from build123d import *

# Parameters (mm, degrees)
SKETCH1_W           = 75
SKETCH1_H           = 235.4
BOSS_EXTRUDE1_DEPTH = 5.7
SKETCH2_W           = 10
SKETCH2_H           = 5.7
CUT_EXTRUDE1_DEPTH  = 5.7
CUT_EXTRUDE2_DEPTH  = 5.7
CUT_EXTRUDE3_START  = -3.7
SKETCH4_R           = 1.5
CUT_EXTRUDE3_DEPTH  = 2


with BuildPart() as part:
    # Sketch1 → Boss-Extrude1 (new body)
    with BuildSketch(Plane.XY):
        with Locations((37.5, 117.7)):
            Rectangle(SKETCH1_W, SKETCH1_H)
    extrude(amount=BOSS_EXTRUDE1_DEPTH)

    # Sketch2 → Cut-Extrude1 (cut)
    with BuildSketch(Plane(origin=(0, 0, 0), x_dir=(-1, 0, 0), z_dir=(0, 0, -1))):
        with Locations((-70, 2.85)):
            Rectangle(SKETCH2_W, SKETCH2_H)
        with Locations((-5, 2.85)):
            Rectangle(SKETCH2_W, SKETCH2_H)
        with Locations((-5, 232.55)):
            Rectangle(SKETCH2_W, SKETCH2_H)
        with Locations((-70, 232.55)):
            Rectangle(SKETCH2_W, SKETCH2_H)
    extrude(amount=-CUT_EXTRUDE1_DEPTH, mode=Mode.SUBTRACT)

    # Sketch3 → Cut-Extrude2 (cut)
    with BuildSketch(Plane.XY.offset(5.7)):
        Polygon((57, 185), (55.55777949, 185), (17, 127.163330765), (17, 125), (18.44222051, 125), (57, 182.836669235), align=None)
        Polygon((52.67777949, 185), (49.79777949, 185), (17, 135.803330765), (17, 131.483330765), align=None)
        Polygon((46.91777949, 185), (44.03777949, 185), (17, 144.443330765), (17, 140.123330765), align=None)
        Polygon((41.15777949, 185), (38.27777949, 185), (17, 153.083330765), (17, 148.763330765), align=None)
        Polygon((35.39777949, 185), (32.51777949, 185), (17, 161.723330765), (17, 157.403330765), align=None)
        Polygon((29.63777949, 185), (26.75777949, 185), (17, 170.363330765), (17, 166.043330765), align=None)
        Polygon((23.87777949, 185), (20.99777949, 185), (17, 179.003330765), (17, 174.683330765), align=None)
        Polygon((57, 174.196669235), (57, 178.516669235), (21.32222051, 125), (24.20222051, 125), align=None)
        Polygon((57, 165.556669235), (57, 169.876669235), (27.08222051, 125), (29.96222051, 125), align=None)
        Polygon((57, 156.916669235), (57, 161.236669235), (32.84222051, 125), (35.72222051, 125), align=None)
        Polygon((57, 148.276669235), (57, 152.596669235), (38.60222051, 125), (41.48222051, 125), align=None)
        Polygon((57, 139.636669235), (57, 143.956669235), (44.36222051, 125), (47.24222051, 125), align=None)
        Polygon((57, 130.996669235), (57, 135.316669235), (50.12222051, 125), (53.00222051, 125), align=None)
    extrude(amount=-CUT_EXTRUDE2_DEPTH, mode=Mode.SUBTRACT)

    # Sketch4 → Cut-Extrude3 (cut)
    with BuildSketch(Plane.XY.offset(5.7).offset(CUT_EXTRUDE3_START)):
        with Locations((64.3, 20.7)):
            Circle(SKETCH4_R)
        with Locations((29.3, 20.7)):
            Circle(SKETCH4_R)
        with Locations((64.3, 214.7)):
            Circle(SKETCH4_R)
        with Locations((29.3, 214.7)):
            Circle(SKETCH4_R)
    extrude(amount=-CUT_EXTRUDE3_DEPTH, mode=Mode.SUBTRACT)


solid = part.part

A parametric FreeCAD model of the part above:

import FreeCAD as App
import Part
import Sketcher

V = App.Vector
Q = App.Units.Quantity

doc = App.newDocument("Part")
params = doc.addObject("Spreadsheet::Sheet", "Params")
for row, (alias, value) in enumerate([
    ("sketch1_width", "75 mm"),
    ("sketch1_height", "235.4 mm"),
    ("pad1_length", "5.7 mm"),
    ("sketch2_width", "10 mm"),
    ("sketch2_height", "5.7 mm"),
    ("pocket1_length", "5.7 mm"),
    ("sketch3_width", "2.88 mm"),
    ("sketch3_height", "4.32 mm"),
    ("pocket2_length", "5.7 mm"),
    ("sketch4_diameter", "3 mm"),
    ("pocket3_length", "2 mm"),
], start=1):
    params.set(f"A{row}", alias)
    params.set(f"B{row}", "=" + value)
    params.setAlias(f"B{row}", alias)

body = doc.addObject("PartDesign::Body", "Body")

sketch1 = body.newObject("Sketcher::SketchObject", "Sketch")
sketch1.AttachmentSupport = (doc.getObject("XY_Plane"), [""])
sketch1.MapMode = "FlatFace"
sketch1.addGeometry([
    Part.LineSegment(V(0, 235, 0), V(0, 0, 0)),
    Part.LineSegment(V(0, 0, 0), V(75, 0, 0)),
    Part.LineSegment(V(75, 0, 0), V(75, 235, 0)),
    Part.LineSegment(V(75, 235, 0), V(0, 235, 0)),
], False)
sketch1.addConstraint([
    Sketcher.Constraint("Coincident", 0, 2, 1, 1),
    Sketcher.Constraint("Coincident", 1, 2, 2, 1),
    Sketcher.Constraint("Coincident", 2, 2, 3, 1),
    Sketcher.Constraint("Coincident", 3, 2, 0, 1),
    Sketcher.Constraint("Vertical", 0),
    Sketcher.Constraint("Horizontal", 1),
    Sketcher.Constraint("Vertical", 2),
    Sketcher.Constraint("Horizontal", 3),
    Sketcher.Constraint("Coincident", 0, 2, -1, 1),
    Sketcher.Constraint("DistanceX", 1, 1, 1, 2, Q("75 mm")),
    Sketcher.Constraint("DistanceY", 0, 2, 0, 1, Q("235.4 mm")),
])
sketch1.setExpression("Constraints[9]", "Params.sketch1_width")
sketch1.setExpression("Constraints[10]", "Params.sketch1_height")
pad1 = body.newObject("PartDesign::Pad", "Pad")
pad1.Profile = sketch1
pad1.setExpression("Length", "Params.pad1_length")

sketch2 = body.newObject("Sketcher::SketchObject", "Sketch001")
sketch2.AttachmentSupport = (doc.getObject("XY_Plane"), [""])
sketch2.MapMode = "FlatFace"
sketch2.addGeometry([
    Part.LineSegment(V(75, 6, 0), V(75, 0, 0)),
    Part.LineSegment(V(75, 0, 0), V(65, 0, 0)),
    Part.LineSegment(V(65, 0, 0), V(65, 6, 0)),
    Part.LineSegment(V(65, 6, 0), V(75, 6, 0)),
    Part.LineSegment(V(10, 6, 0), V(10, 0, 0)),
    Part.LineSegment(V(10, 0, 0), V(0, 0, 0)),
    Part.LineSegment(V(0, 0, 0), V(0, 6, 0)),
    Part.LineSegment(V(0, 6, 0), V(10, 6, 0)),
    Part.LineSegment(V(10, 235, 0), V(10, 230, 0)),
    Part.LineSegment(V(10, 230, 0), V(0, 230, 0)),
    Part.LineSegment(V(0, 230, 0), V(0, 235, 0)),
    Part.LineSegment(V(0, 235, 0), V(10, 235, 0)),
    Part.LineSegment(V(75, 235, 0), V(75, 230, 0)),
    Part.LineSegment(V(75, 230, 0), V(65, 230, 0)),
    Part.LineSegment(V(65, 230, 0), V(65, 235, 0)),
    Part.LineSegment(V(65, 235, 0), V(75, 235, 0)),
], False)
sketch2.addConstraint([
    Sketcher.Constraint("Coincident", 0, 2, 1, 1),
    Sketcher.Constraint("Coincident", 1, 2, 2, 1),
    Sketcher.Constraint("Coincident", 2, 2, 3, 1),
    Sketcher.Constraint("Coincident", 3, 2, 0, 1),
    Sketcher.Constraint("Coincident", 4, 2, 5, 1),
    Sketcher.Constraint("Coincident", 5, 2, 6, 1),
    Sketcher.Constraint("Coincident", 6, 2, 7, 1),
    Sketcher.Constraint("Coincident", 7, 2, 4, 1),
    Sketcher.Constraint("Coincident", 8, 2, 9, 1),
    Sketcher.Constraint("Coincident", 9, 2, 10, 1),
    Sketcher.Constraint("Coincident", 10, 2, 11, 1),
    Sketcher.Constraint("Coincident", 11, 2, 8, 1),
    Sketcher.Constraint("Coincident", 12, 2, 13, 1),
    Sketcher.Constraint("Coincident", 13, 2, 14, 1),
    Sketcher.Constraint("Coincident", 14, 2, 15, 1),
    Sketcher.Constraint("Coincident", 15, 2, 12, 1),
    Sketcher.Constraint("Vertical", 0),
    Sketcher.Constraint("Horizontal", 1),
    Sketcher.Constraint("Vertical", 2),
    Sketcher.Constraint("Horizontal", 3),
    Sketcher.Constraint("Vertical", 4),
    Sketcher.Constraint("Horizontal", 5),
    Sketcher.Constraint("Vertical", 6),
    Sketcher.Constraint("Horizontal", 7),
    Sketcher.Constraint("Vertical", 8),
    Sketcher.Constraint("Horizontal", 9),
    Sketcher.Constraint("Vertical", 10),
    Sketcher.Constraint("Horizontal", 11),
    Sketcher.Constraint("Vertical", 12),
    Sketcher.Constraint("Horizontal", 13),
    Sketcher.Constraint("Vertical", 14),
    Sketcher.Constraint("Horizontal", 15),
    Sketcher.Constraint("Coincident", 5, 2, -1, 1),
    Sketcher.Constraint("PointOnObject", 0, 2, -1),
    Sketcher.Constraint("PointOnObject", 9, 2, -2),
    Sketcher.Constraint("Horizontal", 3, 2, 6, 2),
    Sketcher.Constraint("Horizontal", 9, 2, 12, 2),
    Sketcher.Constraint("Horizontal", 11, 2, 14, 2),
    Sketcher.Constraint("Vertical", 7, 2, 8, 2),
    Sketcher.Constraint("Vertical", 3, 2, 12, 2),
    Sketcher.Constraint("Vertical", 2, 2, 13, 2),
    Sketcher.Constraint("Equal", 3, 5),
    Sketcher.Constraint("Equal", 6, 8),
    Sketcher.Constraint("DistanceX", 1, 2, 1, 1, Q("10 mm")),
    Sketcher.Constraint("DistanceY", 0, 2, 0, 1, Q("5.7 mm")),
    Sketcher.Constraint("DistanceX", -1, 1, 0, 2, Q("75 mm")),
    Sketcher.Constraint("DistanceY", 7, 2, 8, 2, Q("224 mm")),
])
sketch2.setExpression("Constraints[43]", "Params.sketch2_width")
sketch2.setExpression("Constraints[44]", "Params.sketch2_height")
pocket1 = body.newObject("PartDesign::Pocket", "Pocket")
pocket1.Profile = sketch2
pocket1.setExpression("Length", "Params.pocket1_length")
pocket1.Reversed = True

sketch3 = body.newObject("Sketcher::SketchObject", "Sketch002")
sketch3.AttachmentSupport = (doc.getObject("XY_Plane"), [""])
sketch3.MapMode = "FlatFace"
sketch3.AttachmentOffset = App.Placement(V(0, 0, 5.7), App.Rotation())
sketch3.addGeometry([
    Part.LineSegment(V(57, 185, 0), V(55.6, 185, 0)),
    Part.LineSegment(V(55.6, 185, 0), V(17, 127.2, 0)),
    Part.LineSegment(V(17, 127.2, 0), V(17, 125, 0)),
    Part.LineSegment(V(17, 125, 0), V(18.4, 125, 0)),
    Part.LineSegment(V(18.4, 125, 0), V(57, 182.8, 0)),
    Part.LineSegment(V(57, 182.8, 0), V(57, 185, 0)),
    Part.LineSegment(V(52.7, 185, 0), V(49.8, 185, 0)),
    Part.LineSegment(V(49.8, 185, 0), V(17, 135.8, 0)),
    Part.LineSegment(V(17, 135.8, 0), V(17, 131.5, 0)),
    Part.LineSegment(V(17, 131.5, 0), V(52.7, 185, 0)),
    Part.LineSegment(V(46.9, 185, 0), V(44, 185, 0)),
    Part.LineSegment(V(44, 185, 0), V(17, 144.4, 0)),
    Part.LineSegment(V(17, 144.4, 0), V(17, 140.1, 0)),
    Part.LineSegment(V(17, 140.1, 0), V(46.9, 185, 0)),
    Part.LineSegment(V(41.2, 185, 0), V(38.3, 185, 0)),
    Part.LineSegment(V(38.3, 185, 0), V(17, 153.1, 0)),
    Part.LineSegment(V(17, 153.1, 0), V(17, 148.8, 0)),
    Part.LineSegment(V(17, 148.8, 0), V(41.2, 185, 0)),
    Part.LineSegment(V(35.4, 185, 0), V(32.5, 185, 0)),
    Part.LineSegment(V(32.5, 185, 0), V(17, 161.7, 0)),
    Part.LineSegment(V(17, 161.7, 0), V(17, 157.4, 0)),
    Part.LineSegment(V(17, 157.4, 0), V(35.4, 185, 0)),
    Part.LineSegment(V(29.6, 185, 0), V(26.8, 185, 0)),
    Part.LineSegment(V(26.8, 185, 0), V(17, 170.4, 0)),
    Part.LineSegment(V(17, 170.4, 0), V(17, 166, 0)),
    Part.LineSegment(V(17, 166, 0), V(29.6, 185, 0)),
    Part.LineSegment(V(23.9, 185, 0), V(21, 185, 0)),
    Part.LineSegment(V(21, 185, 0), V(17, 179, 0)),
    Part.LineSegment(V(17, 179, 0), V(17, 174.7, 0)),
    Part.LineSegment(V(17, 174.7, 0), V(23.9, 185, 0)),
    Part.LineSegment(V(57, 174.2, 0), V(57, 178.5, 0)),
    Part.LineSegment(V(57, 178.5, 0), V(21.3, 125, 0)),
    Part.LineSegment(V(21.3, 125, 0), V(24.2, 125, 0)),
    Part.LineSegment(V(24.2, 125, 0), V(57, 174.2, 0)),
    Part.LineSegment(V(57, 165.6, 0), V(57, 169.9, 0)),
    Part.LineSegment(V(57, 169.9, 0), V(27.1, 125, 0)),
    Part.LineSegment(V(27.1, 125, 0), V(30, 125, 0)),
    Part.LineSegment(V(30, 125, 0), V(57, 165.6, 0)),
    Part.LineSegment(V(57, 156.9, 0), V(57, 161.2, 0)),
    Part.LineSegment(V(57, 161.2, 0), V(32.8, 125, 0)),
    Part.LineSegment(V(32.8, 125, 0), V(35.7, 125, 0)),
    Part.LineSegment(V(35.7, 125, 0), V(57, 156.9, 0)),
    Part.LineSegment(V(57, 148.3, 0), V(57, 152.6, 0)),
    Part.LineSegment(V(57, 152.6, 0), V(38.6, 125, 0)),
    Part.LineSegment(V(38.6, 125, 0), V(41.5, 125, 0)),
    Part.LineSegment(V(41.5, 125, 0), V(57, 148.3, 0)),
    Part.LineSegment(V(57, 139.6, 0), V(57, 144, 0)),
    Part.LineSegment(V(57, 144, 0), V(44.4, 125, 0)),
    Part.LineSegment(V(44.4, 125, 0), V(47.2, 125, 0)),
    Part.LineSegment(V(47.2, 125, 0), V(57, 139.6, 0)),
    Part.LineSegment(V(57, 131, 0), V(57, 135.3, 0)),
    Part.LineSegment(V(57, 135.3, 0), V(50.1, 125, 0)),
    Part.LineSegment(V(50.1, 125, 0), V(53, 125, 0)),
    Part.LineSegment(V(53, 125, 0), V(57, 131, 0)),
], False)
sketch3.addConstraint([
    Sketcher.Constraint("Coincident", 0, 2, 1, 1),
    Sketcher.Constraint("Coincident", 1, 2, 2, 1),
    Sketcher.Constraint("Coincident", 2, 2, 3, 1),
    Sketcher.Constraint("Coincident", 3, 2, 4, 1),
    Sketcher.Constraint("Coincident", 4, 2, 5, 1),
    Sketcher.Constraint("Coincident", 5, 2, 0, 1),
    Sketcher.Constraint("Coincident", 6, 2, 7, 1),
    Sketcher.Constraint("Coincident", 7, 2, 8, 1),
    Sketcher.Constraint("Coincident", 8, 2, 9, 1),
    Sketcher.Constraint("Coincident", 9, 2, 6, 1),
    Sketcher.Constraint("Coincident", 10, 2, 11, 1),
    Sketcher.Constraint("Coincident", 11, 2, 12, 1),
    Sketcher.Constraint("Coincident", 12, 2, 13, 1),
    Sketcher.Constraint("Coincident", 13, 2, 10, 1),
    Sketcher.Constraint("Coincident", 14, 2, 15, 1),
    Sketcher.Constraint("Coincident", 15, 2, 16, 1),
    Sketcher.Constraint("Coincident", 16, 2, 17, 1),
    Sketcher.Constraint("Coincident", 17, 2, 14, 1),
    Sketcher.Constraint("Coincident", 18, 2, 19, 1),
    Sketcher.Constraint("Coincident", 19, 2, 20, 1),
    Sketcher.Constraint("Coincident", 20, 2, 21, 1),
    Sketcher.Constraint("Coincident", 21, 2, 18, 1),
    Sketcher.Constraint("Coincident", 22, 2, 23, 1),
    Sketcher.Constraint("Coincident", 23, 2, 24, 1),
    Sketcher.Constraint("Coincident", 24, 2, 25, 1),
    Sketcher.Constraint("Coincident", 25, 2, 22, 1),
    Sketcher.Constraint("Coincident", 26, 2, 27, 1),
    Sketcher.Constraint("Coincident", 27, 2, 28, 1),
    Sketcher.Constraint("Coincident", 28, 2, 29, 1),
    Sketcher.Constraint("Coincident", 29, 2, 26, 1),
    Sketcher.Constraint("Coincident", 30, 2, 31, 1),
    Sketcher.Constraint("Coincident", 31, 2, 32, 1),
    Sketcher.Constraint("Coincident", 32, 2, 33, 1),
    Sketcher.Constraint("Coincident", 33, 2, 30, 1),
    Sketcher.Constraint("Coincident", 34, 2, 35, 1),
    Sketcher.Constraint("Coincident", 35, 2, 36, 1),
    Sketcher.Constraint("Coincident", 36, 2, 37, 1),
    Sketcher.Constraint("Coincident", 37, 2, 34, 1),
    Sketcher.Constraint("Coincident", 38, 2, 39, 1),
    Sketcher.Constraint("Coincident", 39, 2, 40, 1),
    Sketcher.Constraint("Coincident", 40, 2, 41, 1),
    Sketcher.Constraint("Coincident", 41, 2, 38, 1),
    Sketcher.Constraint("Coincident", 42, 2, 43, 1),
    Sketcher.Constraint("Coincident", 43, 2, 44, 1),
    Sketcher.Constraint("Coincident", 44, 2, 45, 1),
    Sketcher.Constraint("Coincident", 45, 2, 42, 1),
    Sketcher.Constraint("Coincident", 46, 2, 47, 1),
    Sketcher.Constraint("Coincident", 47, 2, 48, 1),
    Sketcher.Constraint("Coincident", 48, 2, 49, 1),
    Sketcher.Constraint("Coincident", 49, 2, 46, 1),
    Sketcher.Constraint("Coincident", 50, 2, 51, 1),
    Sketcher.Constraint("Coincident", 51, 2, 52, 1),
    Sketcher.Constraint("Coincident", 52, 2, 53, 1),
    Sketcher.Constraint("Coincident", 53, 2, 50, 1),
    Sketcher.Constraint("Horizontal", 0),
    Sketcher.Constraint("Vertical", 2),
    Sketcher.Constraint("Horizontal", 3),
    Sketcher.Constraint("Vertical", 5),
    Sketcher.Constraint("Horizontal", 6),
    Sketcher.Constraint("Vertical", 8),
    Sketcher.Constraint("Horizontal", 10),
    Sketcher.Constraint("Vertical", 12),
    Sketcher.Constraint("Horizontal", 14),
    Sketcher.Constraint("Vertical", 16),
    Sketcher.Constraint("Horizontal", 18),
    Sketcher.Constraint("Vertical", 20),
    Sketcher.Constraint("Horizontal", 22),
    Sketcher.Constraint("Vertical", 24),
    Sketcher.Constraint("Horizontal", 26),
    Sketcher.Constraint("Vertical", 28),
    Sketcher.Constraint("Vertical", 30),
    Sketcher.Constraint("Horizontal", 32),
    Sketcher.Constraint("Vertical", 34),
    Sketcher.Constraint("Horizontal", 36),
    Sketcher.Constraint("Vertical", 38),
    Sketcher.Constraint("Horizontal", 40),
    Sketcher.Constraint("Vertical", 42),
    Sketcher.Constraint("Horizontal", 44),
    Sketcher.Constraint("Vertical", 46),
    Sketcher.Constraint("Horizontal", 48),
    Sketcher.Constraint("Vertical", 50),
    Sketcher.Constraint("Horizontal", 52),
    Sketcher.Constraint("Parallel", 1, 4),
    Sketcher.Constraint("Parallel", 4, 7),
    Sketcher.Constraint("Parallel", 7, 9),
    Sketcher.Constraint("Parallel", 9, 11),
    Sketcher.Constraint("Parallel", 11, 13),
    Sketcher.Constraint("Parallel", 13, 15),
    Sketcher.Constraint("Parallel", 15, 17),
    Sketcher.Constraint("Parallel", 17, 19),
    Sketcher.Constraint("Parallel", 19, 21),
    Sketcher.Constraint("Parallel", 21, 23),
    Sketcher.Constraint("Parallel", 23, 25),
    Sketcher.Constraint("Parallel", 25, 27),
    Sketcher.Constraint("Parallel", 27, 29),
    Sketcher.Constraint("Parallel", 29, 31),
    Sketcher.Constraint("Parallel", 31, 33),
    Sketcher.Constraint("Parallel", 33, 35),
    Sketcher.Constraint("Parallel", 35, 37),
    Sketcher.Constraint("Parallel", 37, 39),
    Sketcher.Constraint("Parallel", 39, 41),
    Sketcher.Constraint("Parallel", 41, 43),
    Sketcher.Constraint("Parallel", 43, 45),
    Sketcher.Constraint("Parallel", 45, 47),
    Sketcher.Constraint("Parallel", 47, 49),
    Sketcher.Constraint("Parallel", 49, 51),
    Sketcher.Constraint("Parallel", 51, 53),
    Sketcher.Constraint("Horizontal", 5, 2, 6, 2),
    Sketcher.Constraint("Horizontal", 9, 2, 10, 2),
    Sketcher.Constraint("Horizontal", 13, 2, 14, 2),
    Sketcher.Constraint("Horizontal", 17, 2, 18, 2),
    Sketcher.Constraint("Horizontal", 21, 2, 22, 2),
    Sketcher.Constraint("Horizontal", 25, 2, 26, 2),
    Sketcher.Constraint("Horizontal", 3, 2, 31, 2),
    Sketcher.Constraint("Horizontal", 32, 2, 35, 2),
    Sketcher.Constraint("Horizontal", 36, 2, 39, 2),
    Sketcher.Constraint("Horizontal", 40, 2, 43, 2),
    Sketcher.Constraint("Horizontal", 44, 2, 47, 2),
    Sketcher.Constraint("Horizontal", 48, 2, 51, 2),
    Sketcher.Constraint("Vertical", 2, 2, 7, 2),
    Sketcher.Constraint("Vertical", 8, 2, 11, 2),
    Sketcher.Constraint("Vertical", 12, 2, 15, 2),
    Sketcher.Constraint("Vertical", 16, 2, 19, 2),
    Sketcher.Constraint("Vertical", 20, 2, 23, 2),
    Sketcher.Constraint("Vertical", 24, 2, 27, 2),
    Sketcher.Constraint("Vertical", 5, 2, 30, 2),
    Sketcher.Constraint("Vertical", 33, 2, 34, 2),
    Sketcher.Constraint("Vertical", 37, 2, 38, 2),
    Sketcher.Constraint("Vertical", 41, 2, 42, 2),
    Sketcher.Constraint("Vertical", 45, 2, 46, 2),
    Sketcher.Constraint("Vertical", 49, 2, 50, 2),
    Sketcher.Constraint("Equal", 0, 3),
    Sketcher.Constraint("Equal", 6, 10),
    Sketcher.Constraint("Equal", 10, 14),
    Sketcher.Constraint("Equal", 14, 18),
    Sketcher.Constraint("Equal", 18, 22),
    Sketcher.Constraint("Equal", 22, 26),
    Sketcher.Constraint("Equal", 26, 32),
    Sketcher.Constraint("Equal", 32, 36),
    Sketcher.Constraint("Equal", 36, 40),
    Sketcher.Constraint("Equal", 40, 44),
    Sketcher.Constraint("Equal", 44, 48),
    Sketcher.Constraint("Equal", 48, 52),
    Sketcher.Constraint("Equal", 9, 31),
    Sketcher.Constraint("Equal", 13, 35),
    Sketcher.Constraint("Equal", 17, 39),
    Sketcher.Constraint("Equal", 21, 43),
    Sketcher.Constraint("Equal", 25, 47),
    Sketcher.Constraint("Equal", 29, 51),
    Sketcher.Constraint("DistanceY", -1, 1, 0, 2, Q("185 mm")),
    Sketcher.Constraint("DistanceX", -1, 1, 1, 2, Q("17 mm")),
    Sketcher.Constraint("DistanceY", -1, 1, 2, 2, Q("125 mm")),
    Sketcher.Constraint("DistanceX", -1, 1, 4, 2, Q("57 mm")),
    Sketcher.Constraint("DistanceX", 6, 2, 6, 1, Q("2.88 mm")),
    Sketcher.Constraint("DistanceY", 8, 2, 8, 1, Q("4.32 mm")),
    Sketcher.Constraint("DistanceX", 14, 2, 9, 2, Q("14.4 mm")),
    Sketcher.Constraint("DistanceX", 18, 2, 13, 2, Q("14.4 mm")),
    Sketcher.Constraint("DistanceX", 22, 2, 17, 2, Q("14.4 mm")),
    Sketcher.Constraint("DistanceX", 26, 2, 21, 2, Q("14.4 mm")),
    Sketcher.Constraint("DistanceY", 38, 2, 4, 2, Q("21.6 mm")),
    Sketcher.Constraint("DistanceY", 42, 2, 33, 2, Q("21.6 mm")),
    Sketcher.Constraint("Distance", 27, Q("7.207099 mm")),
])
sketch3.setExpression("Constraints[153]", "Params.sketch3_width")
sketch3.setExpression("Constraints[154]", "Params.sketch3_height")
pocket2 = body.newObject("PartDesign::Pocket", "Pocket001")
pocket2.Profile = sketch3
pocket2.setExpression("Length", "Params.pocket2_length")

sketch4 = body.newObject("Sketcher::SketchObject", "Sketch003")
sketch4.AttachmentSupport = (doc.getObject("XY_Plane"), [""])
sketch4.MapMode = "FlatFace"
sketch4.AttachmentOffset = App.Placement(V(0, 0, 2), App.Rotation())
sketch4.addGeometry([
    Part.Circle(V(64.3, 20.7, 0), V(0, 0, 1), 1.5),
    Part.Circle(V(29.3, 20.7, 0), V(0, 0, 1), 1.5),
    Part.Circle(V(64.3, 214.7, 0), V(0, 0, 1), 1.5),
    Part.Circle(V(29.3, 214.7, 0), V(0, 0, 1), 1.5),
], False)
sketch4.addConstraint([
    Sketcher.Constraint("Equal", 0, 1),
    Sketcher.Constraint("Equal", 1, 2),
    Sketcher.Constraint("Equal", 2, 3),
    Sketcher.Constraint("Horizontal", 0, 3, 1, 3),
    Sketcher.Constraint("Horizontal", 2, 3, 3, 3),
    Sketcher.Constraint("Vertical", 0, 3, 2, 3),
    Sketcher.Constraint("Vertical", 1, 3, 3, 3),
    Sketcher.Constraint("Diameter", 0, Q("3 mm")),
    Sketcher.Constraint("DistanceX", 1, 3, 0, 3, Q("35 mm")),
    Sketcher.Constraint("DistanceY", 0, 3, 2, 3, Q("194 mm")),
    Sketcher.Constraint("DistanceX", -1, 1, 0, 3, Q("64.3 mm")),
    Sketcher.Constraint("DistanceY", -1, 1, 0, 3, Q("20.7 mm")),
])
sketch4.setExpression("Constraints[7]", "Params.sketch4_diameter")
pocket3 = body.newObject("PartDesign::Pocket", "Pocket002")
pocket3.Profile = sketch4
pocket3.setExpression("Length", "Params.pocket3_length")

doc.recompute()
